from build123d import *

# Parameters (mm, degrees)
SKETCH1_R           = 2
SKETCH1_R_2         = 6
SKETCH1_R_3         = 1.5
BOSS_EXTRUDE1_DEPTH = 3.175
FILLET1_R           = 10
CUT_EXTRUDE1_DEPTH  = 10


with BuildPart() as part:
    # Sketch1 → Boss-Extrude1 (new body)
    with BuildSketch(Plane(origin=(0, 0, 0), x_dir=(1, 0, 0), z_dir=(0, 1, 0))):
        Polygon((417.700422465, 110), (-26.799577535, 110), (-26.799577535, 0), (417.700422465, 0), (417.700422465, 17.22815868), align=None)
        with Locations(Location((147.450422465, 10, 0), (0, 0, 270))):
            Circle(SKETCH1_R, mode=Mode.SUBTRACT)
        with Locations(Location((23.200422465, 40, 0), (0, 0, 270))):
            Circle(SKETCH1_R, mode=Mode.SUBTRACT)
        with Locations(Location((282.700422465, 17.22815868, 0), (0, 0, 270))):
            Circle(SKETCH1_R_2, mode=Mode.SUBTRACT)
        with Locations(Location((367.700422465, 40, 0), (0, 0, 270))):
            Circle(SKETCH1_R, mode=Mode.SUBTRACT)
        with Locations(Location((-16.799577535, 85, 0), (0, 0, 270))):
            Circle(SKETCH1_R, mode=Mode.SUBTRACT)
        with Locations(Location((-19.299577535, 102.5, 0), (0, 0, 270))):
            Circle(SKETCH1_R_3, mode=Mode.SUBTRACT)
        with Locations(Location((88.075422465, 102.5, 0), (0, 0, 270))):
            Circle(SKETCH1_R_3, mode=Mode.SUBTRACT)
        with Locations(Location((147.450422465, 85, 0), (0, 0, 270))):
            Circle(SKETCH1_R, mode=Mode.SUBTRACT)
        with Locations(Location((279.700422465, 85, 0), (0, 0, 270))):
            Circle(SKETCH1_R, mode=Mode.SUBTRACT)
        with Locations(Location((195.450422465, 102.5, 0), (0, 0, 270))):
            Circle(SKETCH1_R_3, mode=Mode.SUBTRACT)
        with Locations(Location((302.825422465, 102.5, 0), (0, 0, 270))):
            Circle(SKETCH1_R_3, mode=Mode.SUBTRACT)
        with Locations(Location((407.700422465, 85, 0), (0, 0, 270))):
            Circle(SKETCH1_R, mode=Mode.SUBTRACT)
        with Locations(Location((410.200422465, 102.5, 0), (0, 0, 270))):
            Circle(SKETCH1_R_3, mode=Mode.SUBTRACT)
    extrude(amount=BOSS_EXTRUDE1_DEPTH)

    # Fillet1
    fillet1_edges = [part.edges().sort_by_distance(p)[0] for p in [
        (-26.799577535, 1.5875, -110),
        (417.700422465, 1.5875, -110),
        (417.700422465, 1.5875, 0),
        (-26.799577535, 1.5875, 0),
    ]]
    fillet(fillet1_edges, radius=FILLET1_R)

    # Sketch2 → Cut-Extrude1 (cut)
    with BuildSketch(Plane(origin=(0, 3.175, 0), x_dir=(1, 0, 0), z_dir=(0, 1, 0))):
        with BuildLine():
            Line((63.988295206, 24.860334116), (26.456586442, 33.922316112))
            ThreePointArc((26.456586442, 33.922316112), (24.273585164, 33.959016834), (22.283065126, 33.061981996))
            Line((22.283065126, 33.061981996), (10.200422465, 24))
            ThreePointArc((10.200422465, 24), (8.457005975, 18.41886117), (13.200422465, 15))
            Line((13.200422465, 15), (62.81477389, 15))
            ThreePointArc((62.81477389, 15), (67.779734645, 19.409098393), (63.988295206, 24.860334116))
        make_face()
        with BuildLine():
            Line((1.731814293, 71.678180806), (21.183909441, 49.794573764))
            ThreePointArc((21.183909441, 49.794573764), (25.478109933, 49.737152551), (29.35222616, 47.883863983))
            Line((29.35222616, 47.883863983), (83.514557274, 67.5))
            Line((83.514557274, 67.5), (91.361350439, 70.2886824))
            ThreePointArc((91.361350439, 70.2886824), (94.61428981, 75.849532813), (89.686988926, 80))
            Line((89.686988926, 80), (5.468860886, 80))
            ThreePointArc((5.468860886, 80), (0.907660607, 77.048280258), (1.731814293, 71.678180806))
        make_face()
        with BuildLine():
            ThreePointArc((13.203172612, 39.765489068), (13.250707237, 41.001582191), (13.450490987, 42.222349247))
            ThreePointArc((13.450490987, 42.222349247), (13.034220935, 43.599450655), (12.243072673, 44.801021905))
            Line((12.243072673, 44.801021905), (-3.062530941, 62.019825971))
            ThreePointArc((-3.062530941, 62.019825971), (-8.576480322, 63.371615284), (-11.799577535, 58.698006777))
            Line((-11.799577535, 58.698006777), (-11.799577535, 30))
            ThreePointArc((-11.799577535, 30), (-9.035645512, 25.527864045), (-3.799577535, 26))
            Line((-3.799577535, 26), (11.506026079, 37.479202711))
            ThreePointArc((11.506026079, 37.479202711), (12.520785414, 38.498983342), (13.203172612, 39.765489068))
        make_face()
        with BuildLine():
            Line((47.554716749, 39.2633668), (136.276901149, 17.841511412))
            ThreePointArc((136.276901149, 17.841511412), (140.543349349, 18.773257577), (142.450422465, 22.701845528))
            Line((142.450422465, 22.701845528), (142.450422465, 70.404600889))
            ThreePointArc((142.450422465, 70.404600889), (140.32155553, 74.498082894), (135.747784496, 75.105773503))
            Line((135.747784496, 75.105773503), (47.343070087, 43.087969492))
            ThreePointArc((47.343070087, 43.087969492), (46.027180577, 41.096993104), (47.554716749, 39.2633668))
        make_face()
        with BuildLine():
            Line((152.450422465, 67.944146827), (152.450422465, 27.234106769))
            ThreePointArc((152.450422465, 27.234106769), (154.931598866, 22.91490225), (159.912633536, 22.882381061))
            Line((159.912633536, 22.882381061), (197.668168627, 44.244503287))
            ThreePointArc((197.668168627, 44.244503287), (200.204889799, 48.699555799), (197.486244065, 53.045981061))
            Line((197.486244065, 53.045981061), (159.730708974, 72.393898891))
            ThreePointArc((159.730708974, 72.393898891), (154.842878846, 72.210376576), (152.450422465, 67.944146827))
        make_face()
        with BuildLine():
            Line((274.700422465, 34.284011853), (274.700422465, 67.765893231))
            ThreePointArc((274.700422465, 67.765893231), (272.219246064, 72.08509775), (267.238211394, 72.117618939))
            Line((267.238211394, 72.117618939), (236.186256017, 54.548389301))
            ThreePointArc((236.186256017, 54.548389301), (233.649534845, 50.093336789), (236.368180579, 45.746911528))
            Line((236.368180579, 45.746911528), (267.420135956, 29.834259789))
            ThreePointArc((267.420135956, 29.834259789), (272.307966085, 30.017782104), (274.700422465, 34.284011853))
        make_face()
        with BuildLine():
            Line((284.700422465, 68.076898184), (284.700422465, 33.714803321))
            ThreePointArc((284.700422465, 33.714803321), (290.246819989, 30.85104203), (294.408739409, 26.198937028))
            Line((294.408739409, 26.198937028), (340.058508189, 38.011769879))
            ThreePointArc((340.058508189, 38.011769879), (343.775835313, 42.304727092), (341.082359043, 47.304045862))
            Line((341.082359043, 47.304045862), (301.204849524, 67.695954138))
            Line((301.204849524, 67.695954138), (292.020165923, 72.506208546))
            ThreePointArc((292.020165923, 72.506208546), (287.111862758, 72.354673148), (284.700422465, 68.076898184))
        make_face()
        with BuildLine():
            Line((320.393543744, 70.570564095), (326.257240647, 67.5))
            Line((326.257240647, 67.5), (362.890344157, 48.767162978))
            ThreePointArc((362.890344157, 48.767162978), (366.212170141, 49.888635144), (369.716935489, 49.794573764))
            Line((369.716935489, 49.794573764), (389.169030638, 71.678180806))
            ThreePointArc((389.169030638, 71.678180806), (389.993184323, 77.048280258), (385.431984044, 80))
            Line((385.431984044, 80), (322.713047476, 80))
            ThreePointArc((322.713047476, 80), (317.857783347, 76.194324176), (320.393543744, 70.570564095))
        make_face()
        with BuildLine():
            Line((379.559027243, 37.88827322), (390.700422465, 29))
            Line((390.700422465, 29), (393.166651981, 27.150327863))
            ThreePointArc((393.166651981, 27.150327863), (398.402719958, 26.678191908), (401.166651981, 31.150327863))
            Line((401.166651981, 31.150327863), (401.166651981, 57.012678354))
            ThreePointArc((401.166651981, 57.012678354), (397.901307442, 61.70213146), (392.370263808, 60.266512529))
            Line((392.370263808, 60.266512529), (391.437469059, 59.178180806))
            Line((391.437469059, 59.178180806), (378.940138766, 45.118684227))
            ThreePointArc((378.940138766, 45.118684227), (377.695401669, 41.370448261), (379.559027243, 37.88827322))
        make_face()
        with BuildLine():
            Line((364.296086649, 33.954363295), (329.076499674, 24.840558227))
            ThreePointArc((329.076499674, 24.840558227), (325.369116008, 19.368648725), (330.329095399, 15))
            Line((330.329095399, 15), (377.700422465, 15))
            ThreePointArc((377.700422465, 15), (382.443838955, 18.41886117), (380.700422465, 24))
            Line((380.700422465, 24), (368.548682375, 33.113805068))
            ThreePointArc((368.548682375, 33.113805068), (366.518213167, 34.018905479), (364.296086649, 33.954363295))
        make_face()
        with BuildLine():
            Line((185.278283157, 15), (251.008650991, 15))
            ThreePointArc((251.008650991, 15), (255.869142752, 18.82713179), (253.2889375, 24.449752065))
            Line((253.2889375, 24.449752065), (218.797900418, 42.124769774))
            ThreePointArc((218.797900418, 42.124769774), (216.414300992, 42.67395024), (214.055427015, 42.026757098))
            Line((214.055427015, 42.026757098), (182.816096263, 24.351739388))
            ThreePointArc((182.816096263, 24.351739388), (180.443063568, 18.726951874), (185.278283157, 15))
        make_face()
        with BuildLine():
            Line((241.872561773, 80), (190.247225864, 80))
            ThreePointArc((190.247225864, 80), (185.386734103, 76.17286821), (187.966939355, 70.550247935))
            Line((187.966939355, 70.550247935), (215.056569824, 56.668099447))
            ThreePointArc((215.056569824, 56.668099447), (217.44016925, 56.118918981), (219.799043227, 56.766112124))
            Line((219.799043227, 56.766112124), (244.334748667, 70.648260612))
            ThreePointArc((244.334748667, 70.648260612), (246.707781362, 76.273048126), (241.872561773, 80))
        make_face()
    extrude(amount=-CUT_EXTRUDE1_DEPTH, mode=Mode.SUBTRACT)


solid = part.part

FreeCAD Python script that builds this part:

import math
import FreeCAD as App
import Part
import Sketcher
from FreeCAD import Vector


def edges_at(feature, points):
    """Names of the edges that pass closest to the given points."""
    edges = feature.Shape.Edges
    near = lambda p: min(range(len(edges)), key=lambda i: edges[i].distToShape(Part.Vertex(*p))[0])
    return sorted({f"Edge{near(p) + 1}" for p in points})

doc = App.newDocument("Part")
params = doc.addObject("Spreadsheet::Sheet", "Params")
for row, (alias, value) in enumerate([
    ("sketch1_diameter", "4 mm"),
    ("sketch1_diameter2", "12 mm"),
    ("sketch1_diameter3", "3 mm"),
    ("sketch1_height", "110 mm"),
    ("sketch1_width", "444.5 mm"),
    ("pad1_length", "3.175 mm"),
    ("fillet_radius", "10 mm"),
    ("sketch2_radius", "5 mm"),
    ("sketch2_radius2", "10 mm"),
    ("sketch2_radius3", "2 mm"),
    ("pocket1_length", "10 mm"),
], start=1):
    params.set(f"A{row}", alias)
    params.set(f"B{row}", "=" + value)
    params.setAlias(f"B{row}", alias)

body = doc.addObject("PartDesign::Body", "Body")

sketch1 = body.newObject("Sketcher::SketchObject", "Sketch")
sketch1.AttachmentSupport = (doc.getObject("XZ_Plane"), [""])
sketch1.MapMode = "FlatFace"
sketch1.addGeometry([
    Part.LineSegment(Vector(417.700422, -110, 0), Vector(-26.799578, -110, 0)),
    Part.LineSegment(Vector(-26.799578, -110, 0), Vector(-26.799578, 0, 0)),
    Part.LineSegment(Vector(-26.799578, 0, 0), Vector(417.700422, 0, 0)),
    Part.LineSegment(Vector(417.700422, 0, 0), Vector(417.700422, -110, 0)),
    Part.Circle(Vector(147.450422, -10, 0), Vector(0, 0, 1), 2),
    Part.Circle(Vector(23.200422, -40, 0), Vector(0, 0, 1), 2),
    Part.Circle(Vector(282.700422, -17.228159, 0), Vector(0, 0, 1), 6),
    Part.Circle(Vector(367.700422, -40, 0), Vector(0, 0, 1), 2),
    Part.Circle(Vector(-16.799578, -85, 0), Vector(0, 0, 1), 2),
    Part.Circle(Vector(-19.299578, -102.5, 0), Vector(0, 0, 1), 1.5),
    Part.Circle(Vector(147.450422, -85, 0), Vector(0, 0, 1), 2),
    Part.Circle(Vector(88.075422, -102.5, 0), Vector(0, 0, 1), 1.5),
    Part.Circle(Vector(279.700422, -85, 0), Vector(0, 0, 1), 2),
    Part.Circle(Vector(195.450422, -102.5, 0), Vector(0, 0, 1), 1.5),
    Part.Circle(Vector(302.825422, -102.5, 0), Vector(0, 0, 1), 1.5),
    Part.Circle(Vector(407.700422, -85, 0), Vector(0, 0, 1), 2),
    Part.Circle(Vector(410.200422, -102.5, 0), Vector(0, 0, 1), 1.5),
], False)
sketch1.addConstraint([
    Sketcher.Constraint("Coincident", 0, 2, 1, 1),
    Sketcher.Constraint("Coincident", 1, 2, 2, 1),
    Sketcher.Constraint("Coincident", 2, 2, 3, 1),
    Sketcher.Constraint("Coincident", 3, 2, 0, 1),
    Sketcher.Constraint("Horizontal", 0),
    Sketcher.Constraint("Vertical", 1),
    Sketcher.Constraint("Horizontal", 2),
    Sketcher.Constraint("Vertical", 3),
    Sketcher.Constraint("Equal", 4, 5),
    Sketcher.Constraint("Equal", 5, 7),
    Sketcher.Constraint("Equal", 7, 8),
    Sketcher.Constraint("Equal", 8, 10),
    Sketcher.Constraint("Equal", 9, 11),
    Sketcher.Constraint("Equal", 10, 12),
    Sketcher.Constraint("Equal", 11, 13),
    Sketcher.Constraint("Equal", 13, 14),
    Sketcher.Constraint("Equal", 12, 15),
    Sketcher.Constraint("Equal", 14, 16),
    Sketcher.Constraint("PointOnObject", 1, 2, -1),
    Sketcher.Constraint("Horizontal", 5, 3, 7, 3),
    Sketcher.Constraint("Horizontal", 8, 3, 10, 3),
    Sketcher.Constraint("Horizontal", 9, 3, 11, 3),
    Sketcher.Constraint("Horizontal", 10, 3, 12, 3),
    Sketcher.Constraint("Horizontal", 11, 3, 13, 3),
    Sketcher.Constraint("Horizontal", 13, 3, 14, 3),
    Sketcher.Constraint("Horizontal", 12, 3, 15, 3),
    Sketcher.Constraint("Horizontal", 14, 3, 16, 3),
    Sketcher.Constraint("Vertical", 4, 3, 10, 3),
    Sketcher.Constraint("Diameter", 4, 4.0),
    Sketcher.Constraint("Diameter", 6, 12.0),
    Sketcher.Constraint("Diameter", 9, 3.0),
    Sketcher.Constraint("DistanceY", 1, 1, 1, 2, 110.0),
    Sketcher.Constraint("DistanceX", 0, 2, 0, 1, 444.5),
    Sketcher.Constraint("DistanceY", 4, 3, -1, 1, 10.0),
    Sketcher.Constraint("DistanceY", 5, 3, -1, 1, 40.0),
    Sketcher.Constraint("DistanceY", 8, 3, -1, 1, 85.0),
    Sketcher.Constraint("DistanceX", 6, 3, 7, 3, 85.0),
    Sketcher.Constraint("DistanceX", 8, 3, 5, 3, 40.0),
    Sketcher.Constraint("DistanceX", 9, 3, 6, 3, 302.0),
    Sketcher.Constraint("DistanceX", 12, 3, 6, 3, 3.0),
    Sketcher.Constraint("DistanceX", 10, 3, 13, 3, 48.0),
    Sketcher.Constraint("DistanceX", 7, 3, 15, 3, 40.0),
    Sketcher.Constraint("DistanceX", 0, 2, 8, 3, 10.0),
    Sketcher.Constraint("DistanceX", 7, 3, 2, 2, 50.0),
    Sketcher.Constraint("DistanceY", 9, 3, -1, 1, 102.5),
    Sketcher.Constraint("DistanceX", 15, 3, 16, 3, 2.5),
    Sketcher.Constraint("DistanceX", 5, 3, 4, 3, 124.25),
    Sketcher.Constraint("DistanceX", 11, 3, 10, 3, 59.375),
    Sketcher.Constraint("DistanceX", 12, 3, 14, 3, 23.125),
    Sketcher.Constraint("DistanceY", 6, 3, -1, 1, 17.228159),
    Sketcher.Constraint("DistanceX", -1, 1, 4, 3, 147.450422),
])
sketch1.setExpression("Constraints[28]", "Params.sketch1_diameter")
sketch1.setExpression("Constraints[29]", "Params.sketch1_diameter2")
sketch1.setExpression("Constraints[30]", "Params.sketch1_diameter3")
sketch1.setExpression("Constraints[31]", "Params.sketch1_height")
sketch1.setExpression("Constraints[32]", "Params.sketch1_width")
pad1 = body.newObject("PartDesign::Pad", "Pad")
pad1.Profile = sketch1
pad1.setExpression("Length", "Params.pad1_length")
pad1.Reversed = True
doc.recompute()

fillet = body.newObject("PartDesign::Fillet", "Fillet")
fillet.Base = (pad1, edges_at(pad1, [
    (-26.8, 1.587, -110),
    (417.7, 1.587, -110),
    (417.7, 1.587, 0),
    (-26.8, 1.587, 0),
]))
fillet.setExpression("Radius", "Params.fillet_radius")

sketch2 = body.newObject("Sketcher::SketchObject", "Sketch001")
sketch2.AttachmentSupport = (doc.getObject("XZ_Plane"), [""])
sketch2.MapMode = "FlatFace"
sketch2.AttachmentOffset = App.Placement(Vector(0, 0, -3.175), App.Rotation())
sketch2.addGeometry([
    Part.LineSegment(Vector(63.988295, -24.860334, 0), Vector(26.456586, -33.922316, 0)),
    Part.ArcOfCircle(Part.Circle(Vector(25.283065, -29.061982, 0), Vector(0, 0, 1), 5), math.radians(-126.869898), math.radians(-76.425809)),
    Part.LineSegment(Vector(22.283065, -33.061982, 0), Vector(10.200422, -24, 0)),
    Part.ArcOfCircle(Part.Circle(Vector(13.200422, -20, 0), Vector(0, 0, 1), 5), math.radians(90), math.radians(233.130102)),
    Part.LineSegment(Vector(13.200422, -15, 0), Vector(62.814774, -15, 0)),
    Part.ArcOfCircle(Part.Circle(Vector(62.814774, -20, 0), Vector(0, 0, 1), 5), math.radians(-76.425809), math.radians(90)),
    Part.LineSegment(Vector(1.731814, -71.678181, 0), Vector(21.183909, -49.794574, 0)),
    Part.ArcOfCircle(Part.Circle(Vector(23.200422, -40, 0), Vector(0, 0, 1), 10), math.radians(-101.633539), math.radians(-52.034973)),
    Part.LineSegment(Vector(29.352226, -47.883864, 0), Vector(83.514557, -67.5, 0)),
    Part.LineSegment(Vector(83.514557, -67.5, 0), Vector(91.36135, -70.288682, 0)),
    Part.ArcOfCircle(Part.Circle(Vector(89.686989, -75, 0), Vector(0, 0, 1), 5), math.radians(-90), math.radians(70.435227)),
    Part.LineSegment(Vector(89.686989, -80, 0), Vector(5.468861, -80, 0)),
    Part.ArcOfCircle(Part.Circle(Vector(5.468861, -75, 0), Vector(0, 0, 1), 5), math.radians(138.366461), math.radians(270)),
    Part.ArcOfCircle(Part.Circle(Vector(23.200422, -40, 0), Vector(0, 0, 1), 10), math.radians(178.656228), math.radians(192.840335)),
    Part.ArcOfCircle(Part.Circle(Vector(8.506026, -41.479203, 0), Vector(0, 0, 1), 5), math.radians(-41.633539), math.radians(-8.547501)),
    Part.LineSegment(Vector(12.243073, -44.801022, 0), Vector(-3.062531, -62.019826, 0)),
    Part.ArcOfCircle(Part.Circle(Vector(-6.799578, -58.698007, 0), Vector(0, 0, 1), 5), math.radians(-180), math.radians(-41.633539)),
    Part.LineSegment(Vector(-11.799578, -58.698007, 0), Vector(-11.799578, -30, 0)),
    Part.ArcOfCircle(Part.Circle(Vector(-6.799578, -30, 0), Vector(0, 0, 1), 5), math.radians(53.130102), math.radians(180)),
    Part.LineSegment(Vector(-3.799578, -26, 0), Vector(11.506026, -37.479203, 0)),
    Part.ArcOfCircle(Part.Circle(Vector(8.506026, -41.479203, 0), Vector(0, 0, 1), 5), math.radians(20.044064), math.radians(53.130102)),
    Part.LineSegment(Vector(47.554717, -39.263367, 0), Vector(136.276901, -17.841511, 0)),
    Part.ArcOfCircle(Part.Circle(Vector(137.450422, -22.701846, 0), Vector(0, 0, 1), 5), math.radians(0), math.radians(103.574191)),
    Part.LineSegment(Vector(142.450422, -22.701846, 0), Vector(142.450422, -70.404601, 0)),
    Part.ArcOfCircle(Part.Circle(Vector(137.450422, -70.404601, 0), Vector(0, 0, 1), 5), math.radians(-109.909021), math.radians(0)),
    Part.LineSegment(Vector(135.747784, -75.105774, 0), Vector(47.34307, -43.087969, 0)),
    Part.ArcOfCircle(Part.Circle(Vector(48.024125, -41.2075, 0), Vector(0, 0, 1), 2), math.radians(103.574191), math.radians(250.090979)),
    Part.LineSegment(Vector(152.450422, -67.944147, 0), Vector(152.450422, -27.234107, 0)),
    Part.ArcOfCircle(Part.Circle(Vector(157.450422, -27.234107, 0), Vector(0, 0, 1), 5), math.radians(60.498772), math.radians(180)),
    Part.LineSegment(Vector(159.912634, -22.882381, 0), Vector(197.668169, -44.244503, 0)),
    Part.ArcOfCircle(Part.Circle(Vector(195.205958, -48.596229, 0), Vector(0, 0, 1), 5), math.radians(-62.867016), math.radians(60.498772)),
    Part.LineSegment(Vector(197.486244, -53.045981, 0), Vector(159.730709, -72.393899, 0)),
    Part.ArcOfCircle(Part.Circle(Vector(157.450422, -67.944147, 0), Vector(0, 0, 1), 5), math.radians(180), math.radians(297.132984)),
    Part.LineSegment(Vector(274.700422, -34.284012, 0), Vector(274.700422, -67.765893, 0)),
    Part.ArcOfCircle(Part.Circle(Vector(269.700422, -67.765893, 0), Vector(0, 0, 1), 5), math.radians(-119.501228), math.radians(0)),
    Part.LineSegment(Vector(267.238211, -72.117619, 0), Vector(236.186256, -54.548389, 0)),
    Part.ArcOfCircle(Part.Circle(Vector(238.648467, -50.196664, 0), Vector(0, 0, 1), 5), math.radians(117.132984), math.radians(240.498772)),
    Part.LineSegment(Vector(236.368181, -45.746912, 0), Vector(267.420136, -29.83426, 0)),
    Part.ArcOfCircle(Part.Circle(Vector(269.700422, -34.284012, 0), Vector(0, 0, 1), 5), math.radians(0), math.radians(117.132984)),
    Part.LineSegment(Vector(284.700422, -68.076898, 0), Vector(284.700422, -33.714803, 0)),
    Part.ArcOfCircle(Part.Circle(Vector(279.700422, -17.228159, 0), Vector(0, 0, 1), 17.228159), math.radians(-73.12872), math.radians(-31.379514)),
    Part.LineSegment(Vector(294.408739, -26.198937, 0), Vector(340.058508, -38.01177, 0)),
    Part.ArcOfCircle(Part.Circle(Vector(338.805912, -42.852328, 0), Vector(0, 0, 1), 5), math.radians(-62.916449), math.radians(75.491765)),
    Part.LineSegment(Vector(341.082359, -47.304046, 0), Vector(301.20485, -67.695954, 0)),
    Part.LineSegment(Vector(301.20485, -67.695954, 0), Vector(292.020166, -72.506209, 0)),
    Part.ArcOfCircle(Part.Circle(Vector(289.700422, -68.076898, 0), Vector(0, 0, 1), 5), math.radians(180), math.radians(297.642204)),
    Part.LineSegment(Vector(320.393544, -70.570564, 0), Vector(326.257241, -67.5, 0)),
    Part.LineSegment(Vector(326.257241, -67.5, 0), Vector(362.890344, -48.767163, 0)),
    Part.ArcOfCircle(Part.Circle(Vector(367.700422, -40, 0), Vector(0, 0, 1), 10), math.radians(-118.751246), math.radians(-78.366461)),
    Part.LineSegment(Vector(369.716935, -49.794574, 0), Vector(389.169031, -71.678181, 0)),
    Part.ArcOfCircle(Part.Circle(Vector(385.431984, -75, 0), Vector(0, 0, 1), 5), math.radians(-90), math.radians(41.633539)),
    Part.LineSegment(Vector(385.431984, -80, 0), Vector(322.713047, -80, 0)),
    Part.ArcOfCircle(Part.Circle(Vector(322.713047, -75, 0), Vector(0, 0, 1), 5), math.radians(117.639103), math.radians(270)),
    Part.LineSegment(Vector(379.559027, -37.888273, 0), Vector(390.700422, -29, 0)),
    Part.LineSegment(Vector(390.700422, -29, 0), Vector(393.166652, -27.150328, 0)),
    Part.ArcOfCircle(Part.Circle(Vector(396.166652, -31.150328, 0), Vector(0, 0, 1), 5), math.radians(0), math.radians(126.869898)),
    Part.LineSegment(Vector(401.166652, -31.150328, 0), Vector(401.166652, -57.012678, 0)),
    Part.ArcOfCircle(Part.Circle(Vector(396.166652, -57.012678, 0), Vector(0, 0, 1), 5), math.radians(-139.400557), math.radians(0)),
    Part.LineSegment(Vector(392.370264, -60.266513, 0), Vector(391.437469, -59.178181, 0)),
    Part.LineSegment(Vector(391.437469, -59.178181, 0), Vector(378.940139, -45.118684, 0)),
    Part.ArcOfCircle(Part.Circle(Vector(382.677185, -41.796865, 0), Vector(0, 0, 1), 5), math.radians(128.581823), math.radians(221.633539)),
    Part.LineSegment(Vector(364.296087, -33.954363, 0), Vector(329.0765, -24.840558, 0)),
    Part.ArcOfCircle(Part.Circle(Vector(330.329095, -20, 0), Vector(0, 0, 1), 5), math.radians(90), math.radians(255.491765)),
    Part.LineSegment(Vector(330.329095, -15, 0), Vector(377.700422, -15, 0)),
    Part.ArcOfCircle(Part.Circle(Vector(377.700422, -20, 0), Vector(0, 0, 1), 5), math.radians(-53.130102), math.radians(90)),
    Part.LineSegment(Vector(380.700422, -24, 0), Vector(368.548682, -33.113805, 0)),
    Part.ArcOfCircle(Part.Circle(Vector(365.548682, -29.113805, 0), Vector(0, 0, 1), 5), math.radians(-104.508235), math.radians(-53.130102)),
    Part.LineSegment(Vector(185.278283, -15, 0), Vector(251.008651, -15, 0)),
    Part.ArcOfCircle(Part.Circle(Vector(251.008651, -20, 0), Vector(0, 0, 1), 5), math.radians(-62.867016), math.radians(90)),
    Part.LineSegment(Vector(253.288938, -24.449752, 0), Vector(218.7979, -42.12477, 0)),
    Part.ArcOfCircle(Part.Circle(Vector(216.517614, -37.675018, 0), Vector(0, 0, 1), 5), math.radians(-119.50091), math.radians(-62.867016)),
    Part.LineSegment(Vector(214.055427, -42.026757, 0), Vector(182.816096, -24.351739, 0)),
    Part.ArcOfCircle(Part.Circle(Vector(185.278283, -20, 0), Vector(0, 0, 1), 5), math.radians(90), math.radians(240.49909)),
    Part.LineSegment(Vector(241.872562, -80, 0), Vector(190.247226, -80, 0)),
    Part.ArcOfCircle(Part.Circle(Vector(190.247226, -75, 0), Vector(0, 0, 1), 5), math.radians(117.132984), math.radians(270)),
    Part.LineSegment(Vector(187.966939, -70.550248, 0), Vector(215.05657, -56.668099, 0)),
    Part.ArcOfCircle(Part.Circle(Vector(217.336856, -61.117852, 0), Vector(0, 0, 1), 5), math.radians(60.49909), math.radians(117.132984)),
    Part.LineSegment(Vector(219.799043, -56.766112, 0), Vector(244.334749, -70.648261, 0)),
    Part.ArcOfCircle(Part.Circle(Vector(241.872562, -75, 0), Vector(0, 0, 1), 5), math.radians(-90), math.radians(60.49909)),
], False)
sketch2.addConstraint([
    Sketcher.Constraint("Tangent", 0, 2, 1, 2),
    Sketcher.Constraint("Tangent", 1, 1, 2, 1),
    Sketcher.Constraint("Tangent", 2, 2, 3, 2),
    Sketcher.Constraint("Tangent", 3, 1, 4, 1),
    Sketcher.Constraint("Tangent", 4, 2, 5, 2),
    Sketcher.Constraint("Tangent", 5, 1, 0, 1),
    Sketcher.Constraint("Coincident", 6, 2, 7, 1),
    Sketcher.Constraint("Coincident", 7, 2, 8, 1),
    Sketcher.Constraint("Coincident", 8, 2, 9, 1),
    Sketcher.Constraint("Tangent", 9, 2, 10, 2),
    Sketcher.Constraint("Tangent", 10, 1, 11, 1),
    Sketcher.Constraint("Tangent", 11, 2, 12, 2),
    Sketcher.Constraint("Tangent", 12, 1, 6, 1),
    Sketcher.Constraint("Coincident", 13, 2, 14, 2),
    Sketcher.Constraint("Tangent", 14, 1, 15, 1),
    Sketcher.Constraint("Tangent", 15, 2, 16, 2),
    Sketcher.Constraint("Tangent", 16, 1, 17, 1),
    Sketcher.Constraint("Tangent", 17, 2, 18, 2),
    Sketcher.Constraint("Tangent", 18, 1, 19, 1),
    Sketcher.Constraint("Tangent", 19, 2, 20, 2),
    Sketcher.Constraint("Coincident", 20, 1, 13, 1),
    Sketcher.Constraint("Tangent", 21, 2, 22, 2),
    Sketcher.Constraint("Tangent", 22, 1, 23, 1),
    Sketcher.Constraint("Tangent", 23, 2, 24, 2),
    Sketcher.Constraint("Tangent", 24, 1, 25, 1),
    Sketcher.Constraint("Tangent", 25, 2, 26, 2),
    Sketcher.Constraint("Tangent", 26, 1, 21, 1),
    Sketcher.Constraint("Tangent", 27, 2, 28, 2),
    Sketcher.Constraint("Tangent", 28, 1, 29, 1),
    Sketcher.Constraint("Tangent", 29, 2, 30, 2),
    Sketcher.Constraint("Tangent", 30, 1, 31, 1),
    Sketcher.Constraint("Tangent", 31, 2, 32, 2),
    Sketcher.Constraint("Tangent", 32, 1, 27, 1),
    Sketcher.Constraint("Tangent", 33, 2, 34, 2),
    Sketcher.Constraint("Tangent", 34, 1, 35, 1),
    Sketcher.Constraint("Tangent", 35, 2, 36, 2),
    Sketcher.Constraint("Tangent", 36, 1, 37, 1),
    Sketcher.Constraint("Tangent", 37, 2, 38, 2),
    Sketcher.Constraint("Tangent", 38, 1, 33, 1),
    Sketcher.Constraint("Coincident", 39, 2, 40, 1),
    Sketcher.Constraint("Coincident", 40, 2, 41, 1),
    Sketcher.Constraint("Tangent", 41, 2, 42, 2),
    Sketcher.Constraint("Tangent", 42, 1, 43, 1),
    Sketcher.Constraint("Coincident", 43, 2, 44, 1),
    Sketcher.Constraint("Tangent", 44, 2, 45, 2),
    Sketcher.Constraint("Tangent", 45, 1, 39, 1),
    Sketcher.Constraint("Coincident", 46, 2, 47, 1),
    Sketcher.Constraint("Coincident", 47, 2, 48, 1),
    Sketcher.Constraint("Coincident", 48, 2, 49, 1),
    Sketcher.Constraint("Tangent", 49, 2, 50, 2),
    Sketcher.Constraint("Tangent", 50, 1, 51, 1),
    Sketcher.Constraint("Tangent", 51, 2, 52, 2),
    Sketcher.Constraint("Tangent", 52, 1, 46, 1),
    Sketcher.Constraint("Coincident", 53, 2, 54, 1),
    Sketcher.Constraint("Tangent", 54, 2, 55, 2),
    Sketcher.Constraint("Tangent", 55, 1, 56, 1),
    Sketcher.Constraint("Tangent", 56, 2, 57, 2),
    Sketcher.Constraint("Tangent", 57, 1, 58, 1),
    Sketcher.Constraint("Coincident", 58, 2, 59, 1),
    Sketcher.Constraint("Tangent", 59, 2, 60, 2),
    Sketcher.Constraint("Tangent", 60, 1, 53, 1),
    Sketcher.Constraint("Tangent", 61, 2, 62, 2),
    Sketcher.Constraint("Tangent", 62, 1, 63, 1),
    Sketcher.Constraint("Tangent", 63, 2, 64, 2),
    Sketcher.Constraint("Tangent", 64, 1, 65, 1),
    Sketcher.Constraint("Tangent", 65, 2, 66, 2),
    Sketcher.Constraint("Tangent", 66, 1, 61, 1),
    Sketcher.Constraint("Tangent", 67, 2, 68, 2),
    Sketcher.Constraint("Tangent", 68, 1, 69, 1),
    Sketcher.Constraint("Tangent", 69, 2, 70, 2),
    Sketcher.Constraint("Tangent", 70, 1, 71, 1),
    Sketcher.Constraint("Tangent", 71, 2, 72, 2),
    Sketcher.Constraint("Tangent", 72, 1, 67, 1),
    Sketcher.Constraint("Tangent", 73, 2, 74, 2),
    Sketcher.Constraint("Tangent", 74, 1, 75, 1),
    Sketcher.Constraint("Tangent", 75, 2, 76, 2),
    Sketcher.Constraint("Tangent", 76, 1, 77, 1),
    Sketcher.Constraint("Tangent", 77, 2, 78, 2),
    Sketcher.Constraint("Tangent", 78, 1, 73, 1),
    Sketcher.Constraint("Horizontal", 4),
    Sketcher.Constraint("Horizontal", 11),
    Sketcher.Constraint("Vertical", 17),
    Sketcher.Constraint("Vertical", 23),
    Sketcher.Constraint("Vertical", 27),
    Sketcher.Constraint("Vertical", 33),
    Sketcher.Constraint("Vertical", 39),
    Sketcher.Constraint("Horizontal", 51),
    Sketcher.Constraint("Vertical", 56),
    Sketcher.Constraint("Horizontal", 63),
    Sketcher.Constraint("Horizontal", 67),
    Sketcher.Constraint("Horizontal", 73),
    Sketcher.Constraint("Coincident", 13, 3, 7, 3),
    Sketcher.Constraint("Coincident", 20, 3, 14, 3),
    Sketcher.Constraint("Equal", 1, 3),
    Sketcher.Constraint("Equal", 3, 5),
    Sketcher.Constraint("Equal", 5, 10),
    Sketcher.Constraint("Equal", 10, 12),
    Sketcher.Constraint("Equal", 7, 13),
    Sketcher.Constraint("Equal", 12, 14),
    Sketcher.Constraint("Equal", 14, 16),
    Sketcher.Constraint("Equal", 16, 18),
    Sketcher.Constraint("Equal", 18, 20),
    Sketcher.Constraint("Equal", 20, 22),
    Sketcher.Constraint("Equal", 22, 24),
    Sketcher.Constraint("Equal", 24, 28),
    Sketcher.Constraint("Equal", 28, 30),
    Sketcher.Constraint("Equal", 30, 32),
    Sketcher.Constraint("Equal", 32, 34),
    Sketcher.Constraint("Equal", 34, 36),
    Sketcher.Constraint("Equal", 36, 38),
    Sketcher.Constraint("Equal", 38, 42),
    Sketcher.Constraint("Equal", 42, 45),
    Sketcher.Constraint("Equal", 13, 48),
    Sketcher.Constraint("Equal", 45, 50),
    Sketcher.Constraint("Equal", 50, 52),
    Sketcher.Constraint("Equal", 52, 55),
    Sketcher.Constraint("Equal", 55, 57),
    Sketcher.Constraint("Equal", 57, 60),
    Sketcher.Constraint("Equal", 60, 62),
    Sketcher.Constraint("Equal", 62, 64),
    Sketcher.Constraint("Equal", 64, 66),
    Sketcher.Constraint("Equal", 66, 68),
    Sketcher.Constraint("Equal", 68, 70),
    Sketcher.Constraint("Equal", 70, 72),
    Sketcher.Constraint("Equal", 72, 74),
    Sketcher.Constraint("Equal", 74, 76),
    Sketcher.Constraint("Equal", 76, 78),
    Sketcher.Constraint("Parallel", 6, 15),
    Sketcher.Constraint("Parallel", 2, 19),
    Sketcher.Constraint("Parallel", 0, 21),
    Sketcher.Constraint("Parallel", 8, 25),
    Sketcher.Constraint("Parallel", 29, 35),
    Sketcher.Constraint("Parallel", 31, 37),
    Sketcher.Constraint("Parallel", 43, 47),
    Sketcher.Constraint("Parallel", 49, 59),
    Sketcher.Constraint("Parallel", 41, 61),
    Sketcher.Constraint("Parallel", 54, 65),
    Sketcher.Constraint("Parallel", 37, 69),
    Sketcher.Constraint("Parallel", 69, 75),
    Sketcher.Constraint("Parallel", 71, 77),
    Sketcher.Constraint("Horizontal", 13, 3, 48, 3),
    Sketcher.Constraint("Horizontal", 12, 3, 50, 3),
    Sketcher.Constraint("Horizontal", 5, 3, 62, 3),
    Sketcher.Constraint("Horizontal", 64, 3, 68, 3),
    Sketcher.Constraint("Horizontal", 52, 3, 74, 3),
    Sketcher.Constraint("Horizontal", 8, 2, 46, 2),
    Sketcher.Constraint("Horizontal", 6, 2, 48, 2),
    Sketcher.Constraint("Horizontal", 12, 1, 49, 2),
    Sketcher.Constraint("Horizontal", 2, 2, 64, 1),
    Sketcher.Constraint("Radius", 1, 5.0),
    Sketcher.Constraint("Radius", 7, 10.0),
    Sketcher.Constraint("Radius", 26, 2.0),
    Sketcher.Constraint("DistanceY", 3, 3, -1, 1, 20.0),
    Sketcher.Constraint("DistanceY", 7, 3, -1, 1, 40.0),
    Sketcher.Constraint("DistanceY", 10, 3, -1, 1, 75.0),
    Sketcher.Constraint("DistanceY", 18, 3, -1, 1, 30.0),
    Sketcher.Constraint("DistanceY", 2, 2, -1, 1, 24.0),
    Sketcher.Constraint("DistanceY", 53, 2, -1, 1, 29.0),
    Sketcher.Constraint("DistanceY", 8, 2, -1, 1, 67.5),
    Sketcher.Constraint("Radius", 40, 17.228159),
    Sketcher.Constraint("Distance", 9, 8.327599),
    Sketcher.Constraint("Distance", 43, 44.788901),
    Sketcher.Constraint("DistanceX", 4, 1, 4, 2, 49.614351),
    Sketcher.Constraint("DistanceX", 11, 2, 11, 1, 84.218128),
    Sketcher.Constraint("DistanceY", 27, 1, 27, 2, 40.71004),
    Sketcher.Constraint("DistanceY", 33, 2, 33, 1, 33.481881),
    Sketcher.Constraint("DistanceY", 56, 2, 56, 1, 25.86235),
    Sketcher.Constraint("DistanceY", 24, 3, -1, 1, 70.404601),
    Sketcher.Constraint("DistanceY", 26, 3, -1, 1, 41.2075),
    Sketcher.Constraint("DistanceY", 45, 3, -1, 1, 68.076898),
    Sketcher.Constraint("DistanceX", -1, 1, 21, 2, 136.276901),
    Sketcher.Constraint("DistanceY", 31, 2, -1, 1, 72.393899),
    Sketcher.Constraint("DistanceX", -1, 1, 61, 2, 329.0765),
    Sketcher.Constraint("DistanceX", -1, 1, 69, 2, 218.7979),
    Sketcher.Constraint("DistanceY", 75, 2, -1, 1, 56.668099),
    Sketcher.Constraint("Distance", 6, 29.27928),
    Sketcher.Constraint("Distance", 8, 57.605129),
    Sketcher.Constraint("Distance", 25, 94.02411),
    Sketcher.Constraint("Distance", 35, 35.677749),
    Sketcher.Constraint("Distance", 37, 34.891782),
    Sketcher.Constraint("Distance", 46, 6.619011),
    Sketcher.Constraint("Distance", 47, 41.144908),
    Sketcher.Constraint("Distance", 53, 14.252441),
    Sketcher.Constraint("DistanceX", 51, 2, 51, 1, 62.718937),
    Sketcher.Constraint("DistanceX", 63, 1, 63, 2, 47.371327),
    Sketcher.Constraint("DistanceX", 67, 1, 67, 2, 65.730368),
    Sketcher.Constraint("DistanceX", 73, 2, 73, 1, 51.625336),
    Sketcher.Constraint("DistanceY", 17, 1, 17, 2, 28.698007),
    Sketcher.Constraint("DistanceY", 23, 2, 23, 1, 47.702755),
    Sketcher.Constraint("DistanceY", 39, 1, 39, 2, 34.362095),
    Sketcher.Constraint("DistanceX", -1, 1, 10, 3, 89.686989),
    Sketcher.Constraint("DistanceY", 38, 3, -1, 1, 34.284012),
    Sketcher.Constraint("DistanceY", 40, 3, -1, 1, 17.228159),
    Sketcher.Constraint("DistanceY", 42, 3, -1, 1, 42.852328),
    Sketcher.Constraint("DistanceX", -1, 1, 55, 3, 396.166652),
    Sketcher.Constraint("DistanceY", 57, 3, -1, 1, 57.012678),
    Sketcher.Constraint("DistanceX", -1, 1, 78, 3, 241.872562),
    Sketcher.Constraint("DistanceX", -1, 1, 13, 2, 13.450491),
    Sketcher.Constraint("DistanceX", -1, 1, 29, 2, 197.668169),
    Sketcher.Constraint("DistanceX", -1, 1, 34, 1, 267.238211),
    Sketcher.Constraint("DistanceX", -1, 1, 40, 2, 294.408739),
    Sketcher.Constraint("DistanceX", -1, 1, 41, 2, 340.058508),
    Sketcher.Constraint("DistanceY", 41, 2, -1, 1, 38.01177),
    Sketcher.Constraint("DistanceX", -1, 1, 46, 2, 326.257241),
    Sketcher.Constraint("DistanceX", -1, 1, 58, 2, 391.437469),
    Sketcher.Constraint("DistanceY", 58, 2, -1, 1, 59.178181),
    Sketcher.Constraint("DistanceX", -1, 1, 1, 3, 25.283065),
])
sketch2.setExpression("Constraints[149]", "Params.sketch2_radius")
sketch2.setExpression("Constraints[150]", "Params.sketch2_radius2")
sketch2.setExpression("Constraints[151]", "Params.sketch2_radius3")
pocket1 = body.newObject("PartDesign::Pocket", "Pocket")
pocket1.Profile = sketch2
pocket1.setExpression("Length", "Params.pocket1_length")
pocket1.Reversed = True

doc.recompute()
